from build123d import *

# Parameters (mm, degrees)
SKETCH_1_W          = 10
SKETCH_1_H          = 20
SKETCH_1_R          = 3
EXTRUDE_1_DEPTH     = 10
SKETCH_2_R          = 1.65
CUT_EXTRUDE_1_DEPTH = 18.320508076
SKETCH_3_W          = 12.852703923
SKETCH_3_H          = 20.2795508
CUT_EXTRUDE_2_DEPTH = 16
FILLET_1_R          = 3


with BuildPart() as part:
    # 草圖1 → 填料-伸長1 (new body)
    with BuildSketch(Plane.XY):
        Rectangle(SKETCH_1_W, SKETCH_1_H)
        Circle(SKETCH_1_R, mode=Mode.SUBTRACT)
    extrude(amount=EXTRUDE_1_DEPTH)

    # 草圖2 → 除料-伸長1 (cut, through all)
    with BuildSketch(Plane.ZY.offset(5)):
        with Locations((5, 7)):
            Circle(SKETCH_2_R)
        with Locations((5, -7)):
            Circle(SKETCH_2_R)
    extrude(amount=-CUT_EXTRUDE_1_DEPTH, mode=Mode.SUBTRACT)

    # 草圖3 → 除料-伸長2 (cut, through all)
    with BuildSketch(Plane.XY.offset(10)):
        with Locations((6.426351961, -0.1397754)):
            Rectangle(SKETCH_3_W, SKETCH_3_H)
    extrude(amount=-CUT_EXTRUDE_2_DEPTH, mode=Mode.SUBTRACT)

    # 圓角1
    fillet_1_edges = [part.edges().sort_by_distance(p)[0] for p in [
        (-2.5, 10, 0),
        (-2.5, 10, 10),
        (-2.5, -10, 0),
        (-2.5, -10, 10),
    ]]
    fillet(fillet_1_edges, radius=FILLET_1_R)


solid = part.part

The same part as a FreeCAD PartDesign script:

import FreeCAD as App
import Part
import Sketcher

V = App.Vector


def edges_at(feature, points):
    """Names of the edges that pass closest to the given points."""
    edges = feature.Shape.Edges
    near = lambda p: min(range(len(edges)), key=lambda i: edges[i].distToShape(Part.Vertex(*p))[0])
    return sorted({f"Edge{near(p) + 1}" for p in points})


def add_polygon(sketch, points):
    """Adds a closed chain of lines whose ends are joined by coincident constraints."""
    first, n = sketch.GeometryCount, len(points)
    for a, b in zip(points, points[1:] + points[:1]):
        sketch.addGeometry(Part.LineSegment(App.Vector(*a, 0), App.Vector(*b, 0)), False)
    for i in range(n):
        sketch.addConstraint(Sketcher.Constraint("Coincident", first + i, 2, first + (i + 1) % n, 1))

doc = App.newDocument("Part")
params = doc.addObject("Spreadsheet::Sheet", "Params")
for row, (alias, value) in enumerate([
    ("sketch1_diameter", "6 mm"),
    ("sketch1_width", "10 mm"),
    ("sketch1_height", "20 mm"),
    ("pad1_length", "10 mm"),
    ("sketch2_diameter", "3.3 mm"),
    ("fillet_radius", "3 mm"),
], start=1):
    params.set(f"A{row}", alias)
    params.set(f"B{row}", "=" + value)
    params.setAlias(f"B{row}", alias)

body = doc.addObject("PartDesign::Body", "Body")

sketch1 = body.newObject("Sketcher::SketchObject", "Sketch")
sketch1.AttachmentSupport = (doc.getObject("XY_Plane"), [""])
sketch1.MapMode = "FlatFace"
add_polygon(sketch1, [(-5, 10), (-5, -10), (5, -10), (5, 10)])
sketch1.addGeometry(Part.Circle(V(0, 0, 0), V(0, 0, 1), 3), False)
sketch1.addConstraint([
    Sketcher.Constraint("Vertical", 0),
    Sketcher.Constraint("Horizontal", 1),
    Sketcher.Constraint("Vertical", 2),
    Sketcher.Constraint("Horizontal", 3),
    Sketcher.Constraint("Coincident", 4, 3, -1, 1),
    Sketcher.Constraint("Symmetric", 0, 2, 2, 2, -1, 1),
    Sketcher.Constraint("Diameter", 4, 6.0),
    Sketcher.Constraint("DistanceX", 1, 1, 1, 2, 10.0),
    Sketcher.Constraint("DistanceY", 0, 2, 0, 1, 20.0),
])
sketch1.setExpression("Constraints[10]", "Params.sketch1_diameter")
sketch1.setExpression("Constraints[11]", "Params.sketch1_width")
sketch1.setExpression("Constraints[12]", "Params.sketch1_height")
pad1 = body.newObject("PartDesign::Pad", "Pad")
pad1.Profile = sketch1
pad1.setExpression("Length", "Params.pad1_length")

sketch2 = body.newObject("Sketcher::SketchObject", "Sketch001")
sketch2.AttachmentSupport = (doc.getObject("YZ_Plane"), [""])
sketch2.MapMode = "FlatFace"
sketch2.AttachmentOffset = App.Placement(V(0, 0, -5), App.Rotation())
sketch2.addGeometry([
    Part.Circle(V(7, 5, 0), V(0, 0, 1), 1.65),
    Part.Circle(V(-7, 5, 0), V(0, 0, 1), 1.65),
], False)
sketch2.addConstraint([
    Sketcher.Constraint("Equal", 0, 1),
    Sketcher.Constraint("Symmetric", 0, 3, 1, 3, -2),
    Sketcher.Constraint("Diameter", 0, 3.3),
    Sketcher.Constraint("DistanceX", -1, 1, 0, 3, 7.0),
    Sketcher.Constraint("DistanceY", -1, 1, 0, 3, 5.0),
])
sketch2.setExpression("Constraints[2]", "Params.sketch2_diameter")
pocket1 = body.newObject("PartDesign::Pocket", "Pocket")
pocket1.Profile = sketch2
pocket1.Type = "ThroughAll"
pocket1.Reversed = True

sketch3 = body.newObject("Sketcher::SketchObject", "Sketch002")
sketch3.AttachmentSupport = (doc.getObject("XY_Plane"), [""])
sketch3.MapMode = "FlatFace"
sketch3.AttachmentOffset = App.Placement(V(0, 0, 10), App.Rotation())
add_polygon(sketch3, [(0, 10), (0, -10.279551), (12.852704, -10.279551), (12.852704, 10)])
sketch3.addConstraint([
    Sketcher.Constraint("Vertical", 0),
    Sketcher.Constraint("Horizontal", 1),
    Sketcher.Constraint("Vertical", 2),
    Sketcher.Constraint("Horizontal", 3),
    Sketcher.Constraint("PointOnObject", 0, 2, -2),
    Sketcher.Constraint("DistanceY", -1, 1, 2, 2, 10.0),
    Sketcher.Constraint("DistanceY", 0, 2, 0, 1, 20.279551),
    Sketcher.Constraint("DistanceX", 1, 1, 1, 2, 12.852704),
])
pocket2 = body.newObject("PartDesign::Pocket", "Pocket001")
pocket2.Profile = sketch3
pocket2.Type = "ThroughAll"
doc.recompute()

fillet = body.newObject("PartDesign::Fillet", "Fillet")
fillet.Base = (pocket2, edges_at(pocket2, [
    (-2.5, 10, 0),
    (-2.5, 10, 10),
    (-2.5, -10, 0),
    (-2.5, -10, 10),
]))
fillet.setExpression("Radius", "Params.fillet_radius")

doc.recompute()
